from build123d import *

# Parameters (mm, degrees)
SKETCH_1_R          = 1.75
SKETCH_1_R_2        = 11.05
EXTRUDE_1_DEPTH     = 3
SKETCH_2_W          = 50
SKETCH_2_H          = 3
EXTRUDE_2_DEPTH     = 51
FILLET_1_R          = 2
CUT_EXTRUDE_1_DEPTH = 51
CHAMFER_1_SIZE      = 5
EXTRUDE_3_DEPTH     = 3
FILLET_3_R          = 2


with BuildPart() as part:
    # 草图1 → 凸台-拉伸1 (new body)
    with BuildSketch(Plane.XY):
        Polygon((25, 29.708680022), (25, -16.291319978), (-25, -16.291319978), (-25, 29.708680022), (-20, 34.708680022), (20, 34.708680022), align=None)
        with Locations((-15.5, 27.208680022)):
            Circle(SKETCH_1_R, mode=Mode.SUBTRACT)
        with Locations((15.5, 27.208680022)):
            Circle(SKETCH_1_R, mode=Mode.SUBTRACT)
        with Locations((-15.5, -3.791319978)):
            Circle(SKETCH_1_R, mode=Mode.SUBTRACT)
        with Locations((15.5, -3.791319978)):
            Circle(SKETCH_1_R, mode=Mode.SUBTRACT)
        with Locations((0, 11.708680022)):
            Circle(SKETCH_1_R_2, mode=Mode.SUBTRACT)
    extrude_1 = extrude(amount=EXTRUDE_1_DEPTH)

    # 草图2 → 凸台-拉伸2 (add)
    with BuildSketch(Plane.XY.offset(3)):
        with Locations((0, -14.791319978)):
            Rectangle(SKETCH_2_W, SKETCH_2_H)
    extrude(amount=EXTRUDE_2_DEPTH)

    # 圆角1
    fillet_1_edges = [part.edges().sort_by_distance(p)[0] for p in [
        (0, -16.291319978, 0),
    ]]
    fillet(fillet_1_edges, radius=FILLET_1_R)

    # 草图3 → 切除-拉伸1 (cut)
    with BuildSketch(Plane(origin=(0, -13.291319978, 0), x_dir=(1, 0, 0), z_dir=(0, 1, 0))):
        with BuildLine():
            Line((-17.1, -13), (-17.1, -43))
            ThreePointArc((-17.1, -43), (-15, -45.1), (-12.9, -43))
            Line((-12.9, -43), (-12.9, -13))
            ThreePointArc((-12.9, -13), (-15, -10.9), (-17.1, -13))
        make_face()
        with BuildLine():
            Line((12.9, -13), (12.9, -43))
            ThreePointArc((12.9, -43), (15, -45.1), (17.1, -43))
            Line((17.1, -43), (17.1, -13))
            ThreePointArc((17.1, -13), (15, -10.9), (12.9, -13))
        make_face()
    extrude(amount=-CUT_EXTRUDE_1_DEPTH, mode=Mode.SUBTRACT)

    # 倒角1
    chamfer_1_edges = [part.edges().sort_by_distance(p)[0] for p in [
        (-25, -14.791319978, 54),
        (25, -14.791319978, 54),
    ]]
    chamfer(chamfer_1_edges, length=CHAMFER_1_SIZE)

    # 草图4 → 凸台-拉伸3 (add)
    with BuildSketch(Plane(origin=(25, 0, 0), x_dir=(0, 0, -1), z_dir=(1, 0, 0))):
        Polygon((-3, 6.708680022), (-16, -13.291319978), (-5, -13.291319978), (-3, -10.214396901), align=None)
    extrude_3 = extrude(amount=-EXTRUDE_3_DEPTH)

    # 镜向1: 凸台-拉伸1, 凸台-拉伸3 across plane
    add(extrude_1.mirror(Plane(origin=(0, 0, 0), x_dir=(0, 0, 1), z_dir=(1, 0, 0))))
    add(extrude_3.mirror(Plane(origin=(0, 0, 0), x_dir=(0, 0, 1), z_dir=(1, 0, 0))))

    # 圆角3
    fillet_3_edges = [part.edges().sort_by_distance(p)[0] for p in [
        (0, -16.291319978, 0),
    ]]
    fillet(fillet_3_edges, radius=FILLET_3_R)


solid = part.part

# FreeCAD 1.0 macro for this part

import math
import FreeCAD as App
import Part
import Sketcher
from FreeCAD import Vector
Q = App.Units.Quantity


def edges_at(feature, points):
    """Names of the edges that pass closest to the given points."""
    edges = feature.Shape.Edges
    near = lambda p: min(range(len(edges)), key=lambda i: edges[i].distToShape(Part.Vertex(*p))[0])
    return sorted({f"Edge{near(p) + 1}" for p in points})

doc = App.newDocument("Part")
params = doc.addObject("Spreadsheet::Sheet", "Params")
for row, (alias, value) in enumerate([
    ("sketch1_diameter", "3.5 mm"),
    ("sketch1_diameter2", "22.1 mm"),
    ("sketch1_width", "40 mm"),
    ("sketch1_width2", "50 mm"),
    ("sketch1_height", "46 mm"),
    ("pad1_length", "3 mm"),
    ("sketch2_width", "50 mm"),
    ("sketch2_height", "3 mm"),
    ("pad2_length", "51 mm"),
    ("fillet_radius", "2 mm"),
    ("sketch3_radius", "2.1 mm"),
    ("sketch3_height", "30 mm"),
    ("pocket1_length", "51 mm"),
    ("chamfer_size", "5 mm"),
    ("sketch4_height", "11 mm"),
    ("pad3_length", "3 mm"),
    ("fillet2_radius", "2 mm"),
], start=1):
    params.set(f"A{row}", alias)
    params.set(f"B{row}", "=" + value)
    params.setAlias(f"B{row}", alias)

body = doc.addObject("PartDesign::Body", "Body")

# Sketch on XY plane
sketch1 = body.newObject("Sketcher::SketchObject", "Sketch")
sketch1.AttachmentSupport = (doc.getObject("XY_Plane"), [""])
sketch1.MapMode = "FlatFace"
sketch1.addGeometry([
    Part.LineSegment(Vector(25, -16.3, 0), Vector(25, 29.7, 0)),  # 0
    Part.LineSegment(Vector(25, 29.7, 0), Vector(20, 34.7, 0)),  # 1
    Part.LineSegment(Vector(20, 34.7, 0), Vector(-20, 34.7, 0)),  # 2
    Part.LineSegment(Vector(-20, 34.7, 0), Vector(-25, 29.7, 0)),  # 3
    Part.LineSegment(Vector(-25, 29.7, 0), Vector(-25, -16.3, 0)),  # 4
    Part.LineSegment(Vector(-25, -16.3, 0), Vector(25, -16.3, 0)),  # 5
    Part.Circle(Vector(15.5, -3.8, 0), Vector(0, 0, 1), 1.8),  # 6
    Part.Circle(Vector(-15.5, -3.8, 0), Vector(0, 0, 1), 1.8),  # 7
    Part.Circle(Vector(15.5, 27.2, 0), Vector(0, 0, 1), 1.8),  # 8
    Part.Circle(Vector(0, 11.7, 0), Vector(0, 0, 1), 11.1),  # 9
    Part.Circle(Vector(-15.5, 27.2, 0), Vector(0, 0, 1), 1.8),  # 10
], False)
sketch1.addConstraint([
    Sketcher.Constraint("Coincident", 0, 2, 1, 1),
    Sketcher.Constraint("Coincident", 1, 2, 2, 1),
    Sketcher.Constraint("Coincident", 2, 2, 3, 1),
    Sketcher.Constraint("Coincident", 3, 2, 4, 1),
    Sketcher.Constraint("Coincident", 4, 2, 5, 1),
    Sketcher.Constraint("Coincident", 5, 2, 0, 1),
    Sketcher.Constraint("Vertical", 0),
    Sketcher.Constraint("Horizontal", 2),
    Sketcher.Constraint("Vertical", 4),
    Sketcher.Constraint("Horizontal", 5),
    Sketcher.Constraint("Equal", 6, 7),
    Sketcher.Constraint("Equal", 7, 8),
    Sketcher.Constraint("Equal", 8, 10),
    Sketcher.Constraint("Symmetric", 6, 3, 7, 3, -2),
    Sketcher.Constraint("Symmetric", 8, 3, 10, 3, -2),
    Sketcher.Constraint("Symmetric", 0, 2, 3, 2, -2),
    Sketcher.Constraint("PointOnObject", 9, 3, -2),
    Sketcher.Constraint("Perpendicular", 1, 3),
    Sketcher.Constraint("Vertical", 6, 3, 8, 3),
    Sketcher.Constraint("Equal", 1, 3),
    Sketcher.Constraint("Diameter", 6, Q("3.5 mm")),
    Sketcher.Constraint("Diameter", 9, Q("22.1 mm")),
    Sketcher.Constraint("DistanceX", 2, 2, 2, 1, Q("40 mm")),
    Sketcher.Constraint("DistanceX", 5, 1, 5, 2, Q("50 mm")),
    Sketcher.Constraint("DistanceY", 0, 1, 0, 2, Q("46 mm")),
    Sketcher.Constraint("DistanceX", 7, 3, 6, 3, Q("31 mm")),
    Sketcher.Constraint("DistanceY", 6, 3, 8, 3, Q("31 mm")),
    Sketcher.Constraint("DistanceY", 9, 3, 0, 2, Q("18 mm")),
    Sketcher.Constraint("DistanceY", 6, 3, 9, 3, Q("15.5 mm")),
    Sketcher.Constraint("DistanceY", 6, 3, -1, 1, Q("3.79132 mm")),
])
sketch1.setExpression("Constraints[20]", "Params.sketch1_diameter")
sketch1.setExpression("Constraints[21]", "Params.sketch1_diameter2")
sketch1.setExpression("Constraints[22]", "Params.sketch1_width")
sketch1.setExpression("Constraints[23]", "Params.sketch1_width2")
sketch1.setExpression("Constraints[24]", "Params.sketch1_height")
pad1 = body.newObject("PartDesign::Pad", "Pad")
pad1.Profile = sketch1
pad1.setExpression("Length", "Params.pad1_length")

# Sketch on XY plane
sketch2 = body.newObject("Sketcher::SketchObject", "Sketch001")
sketch2.AttachmentSupport = (doc.getObject("XY_Plane"), [""])
sketch2.MapMode = "FlatFace"
sketch2.AttachmentOffset = App.Placement(Vector(0, 0, 3), App.Rotation())
sketch2.addGeometry([
    Part.LineSegment(Vector(-25, -13.3, 0), Vector(-25, -16.3, 0)),
    Part.LineSegment(Vector(-25, -16.3, 0), Vector(25, -16.3, 0)),
    Part.LineSegment(Vector(25, -16.3, 0), Vector(25, -13.3, 0)),
    Part.LineSegment(Vector(25, -13.3, 0), Vector(-25, -13.3, 0)),
], False)
sketch2.addConstraint([
    Sketcher.Constraint("Coincident", 0, 2, 1, 1),
    Sketcher.Constraint("Coincident", 1, 2, 2, 1),
    Sketcher.Constraint("Coincident", 2, 2, 3, 1),
    Sketcher.Constraint("Coincident", 3, 2, 0, 1),
    Sketcher.Constraint("Vertical", 0),
    Sketcher.Constraint("Horizontal", 1),
    Sketcher.Constraint("Vertical", 2),
    Sketcher.Constraint("Horizontal", 3),
    Sketcher.Constraint("DistanceX", 1, 1, 1, 2, Q("50 mm")),
    Sketcher.Constraint("DistanceY", 0, 2, 0, 1, Q("3 mm")),
    Sketcher.Constraint("DistanceX", 0, 2, -1, 1, Q("25 mm")),
    Sketcher.Constraint("DistanceY", 0, 2, -1, 1, Q("16.29132 mm")),
])
sketch2.setExpression("Constraints[8]", "Params.sketch2_width")
sketch2.setExpression("Constraints[9]", "Params.sketch2_height")
pad2 = body.newObject("PartDesign::Pad", "Pad001")
pad2.Profile = sketch2
pad2.setExpression("Length", "Params.pad2_length")
doc.recompute()

fillet = body.newObject("PartDesign::Fillet", "Fillet")
fillet.Base = (pad2, edges_at(pad2, [(0, -16.291, 0)]))
fillet.setExpression("Radius", "Params.fillet_radius")

# Sketch on XZ plane
sketch3 = body.newObject("Sketcher::SketchObject", "Sketch002")
sketch3.AttachmentSupport = (doc.getObject("XZ_Plane"), [""])
sketch3.MapMode = "FlatFace"
sketch3.AttachmentOffset = App.Placement(Vector(0, 0, 13.29132), App.Rotation())
sketch3.addGeometry([
    Part.LineSegment(Vector(-17.1, 13, 0), Vector(-17.1, 43, 0)),  # 0
    Part.ArcOfCircle(Part.Circle(Vector(-15, 43, 0), Vector(0, 0, 1), 2.1), math.radians(0), math.radians(180)),  # 1
    Part.LineSegment(Vector(-12.9, 43, 0), Vector(-12.9, 13, 0)),  # 2
    Part.ArcOfCircle(Part.Circle(Vector(-15, 13, 0), Vector(0, 0, 1), 2.1), math.radians(180), math.radians(360)),  # 3
    Part.LineSegment(Vector(12.9, 13, 0), Vector(12.9, 43, 0)),  # 4
    Part.ArcOfCircle(Part.Circle(Vector(15, 43, 0), Vector(0, 0, 1), 2.1), math.radians(0), math.radians(180)),  # 5
    Part.LineSegment(Vector(17.1, 43, 0), Vector(17.1, 13, 0)),  # 6
    Part.ArcOfCircle(Part.Circle(Vector(15, 13, 0), Vector(0, 0, 1), 2.1), math.radians(180), math.radians(360)),  # 7
], False)
sketch3.addConstraint([
    Sketcher.Constraint("Tangent", 0, 2, 1, 2),
    Sketcher.Constraint("Tangent", 1, 1, 2, 1),
    Sketcher.Constraint("Tangent", 2, 2, 3, 2),
    Sketcher.Constraint("Tangent", 3, 1, 0, 1),
    Sketcher.Constraint("Tangent", 4, 2, 5, 2),
    Sketcher.Constraint("Tangent", 5, 1, 6, 1),
    Sketcher.Constraint("Tangent", 6, 2, 7, 2),
    Sketcher.Constraint("Tangent", 7, 1, 4, 1),
    Sketcher.Constraint("Vertical", 0),
    Sketcher.Constraint("Vertical", 2),
    Sketcher.Constraint("Vertical", 4),
    Sketcher.Constraint("Vertical", 6),
    Sketcher.Constraint("Equal", 3, 5),
    Sketcher.Constraint("Symmetric", 1, 3, 5, 3, -2),
    Sketcher.Constraint("Horizontal", 3, 3, 7, 3),
    Sketcher.Constraint("Radius", 1, Q("2.1 mm")),
    Sketcher.Constraint("DistanceY", 0, 1, 0, 2, Q("30 mm")),
    Sketcher.Constraint("DistanceX", 1, 3, -1, 1, Q("15 mm")),
    Sketcher.Constraint("DistanceY", -1, 1, 1, 3, Q("43 mm")),
])
sketch3.setExpression("Constraints[15]", "Params.sketch3_radius")
sketch3.setExpression("Constraints[16]", "Params.sketch3_height")
pocket1 = body.newObject("PartDesign::Pocket", "Pocket")
pocket1.Profile = sketch3
pocket1.setExpression("Length", "Params.pocket1_length")
pocket1.Reversed = True
doc.recompute()

chamfer = body.newObject("PartDesign::Chamfer", "Chamfer")
chamfer.Base = (pocket1, edges_at(pocket1, [(-25, -14.791, 54), (25, -14.791, 54)]))
chamfer.setExpression("Size", "Params.chamfer_size")

# Sketch on YZ plane
sketch4 = body.newObject("Sketcher::SketchObject", "Sketch003")
sketch4.AttachmentSupport = (doc.getObject("YZ_Plane"), [""])
sketch4.MapMode = "FlatFace"
sketch4.AttachmentOffset = App.Placement(Vector(0, 0, 25), App.Rotation())
sketch4.addGeometry([
    Part.LineSegment(Vector(6.7, 3, 0), Vector(-13.3, 16, 0)),
    Part.LineSegment(Vector(-13.3, 16, 0), Vector(-13.3, 5, 0)),
    Part.LineSegment(Vector(-13.3, 5, 0), Vector(-10.2, 3, 0)),
    Part.LineSegment(Vector(-10.2, 3, 0), Vector(6.7, 3, 0)),
], False)
sketch4.addConstraint([
    Sketcher.Constraint("Coincident", 0, 2, 1, 1),
    Sketcher.Constraint("Coincident", 1, 2, 2, 1),
    Sketcher.Constraint("Coincident", 2, 2, 3, 1),
    Sketcher.Constraint("Coincident", 3, 2, 0, 1),
    Sketcher.Constraint("Vertical", 1),
    Sketcher.Constraint("Horizontal", 3),
    Sketcher.Constraint("Parallel", 0, 2),
    Sketcher.Constraint("DistanceY", 1, 2, 1, 1, Q("11 mm")),
    Sketcher.Constraint("DistanceY", -1, 1, 0, 2, Q("16 mm")),
    Sketcher.Constraint("DistanceY", -1, 1, 2, 2, Q("3 mm")),
    Sketcher.Constraint("DistanceX", 1, 2, 3, 2, Q("20 mm")),
    Sketcher.Constraint("DistanceX", 0, 2, -1, 1, Q("13.29132 mm")),
])
sketch4.setExpression("Constraints[7]", "Params.sketch4_height")
pad3 = body.newObject("PartDesign::Pad", "Pad002")
pad3.Profile = sketch4
pad3.setExpression("Length", "Params.pad3_length")
pad3.Reversed = True
doc.recompute()

mirrored = body.newObject("PartDesign::Mirrored", "Mirrored")
mirrored.Originals = [pad1, pad3]
mirrored.MirrorPlane = (doc.getObject("YZ_Plane"), [""])
body.Tip = mirrored
doc.recompute()

fillet2 = body.newObject("PartDesign::Fillet", "Fillet001")
fillet2.Base = (mirrored, edges_at(mirrored, [(0, -16.291, 0)]))
fillet2.setExpression("Radius", "Params.fillet2_radius")

doc.recompute()
